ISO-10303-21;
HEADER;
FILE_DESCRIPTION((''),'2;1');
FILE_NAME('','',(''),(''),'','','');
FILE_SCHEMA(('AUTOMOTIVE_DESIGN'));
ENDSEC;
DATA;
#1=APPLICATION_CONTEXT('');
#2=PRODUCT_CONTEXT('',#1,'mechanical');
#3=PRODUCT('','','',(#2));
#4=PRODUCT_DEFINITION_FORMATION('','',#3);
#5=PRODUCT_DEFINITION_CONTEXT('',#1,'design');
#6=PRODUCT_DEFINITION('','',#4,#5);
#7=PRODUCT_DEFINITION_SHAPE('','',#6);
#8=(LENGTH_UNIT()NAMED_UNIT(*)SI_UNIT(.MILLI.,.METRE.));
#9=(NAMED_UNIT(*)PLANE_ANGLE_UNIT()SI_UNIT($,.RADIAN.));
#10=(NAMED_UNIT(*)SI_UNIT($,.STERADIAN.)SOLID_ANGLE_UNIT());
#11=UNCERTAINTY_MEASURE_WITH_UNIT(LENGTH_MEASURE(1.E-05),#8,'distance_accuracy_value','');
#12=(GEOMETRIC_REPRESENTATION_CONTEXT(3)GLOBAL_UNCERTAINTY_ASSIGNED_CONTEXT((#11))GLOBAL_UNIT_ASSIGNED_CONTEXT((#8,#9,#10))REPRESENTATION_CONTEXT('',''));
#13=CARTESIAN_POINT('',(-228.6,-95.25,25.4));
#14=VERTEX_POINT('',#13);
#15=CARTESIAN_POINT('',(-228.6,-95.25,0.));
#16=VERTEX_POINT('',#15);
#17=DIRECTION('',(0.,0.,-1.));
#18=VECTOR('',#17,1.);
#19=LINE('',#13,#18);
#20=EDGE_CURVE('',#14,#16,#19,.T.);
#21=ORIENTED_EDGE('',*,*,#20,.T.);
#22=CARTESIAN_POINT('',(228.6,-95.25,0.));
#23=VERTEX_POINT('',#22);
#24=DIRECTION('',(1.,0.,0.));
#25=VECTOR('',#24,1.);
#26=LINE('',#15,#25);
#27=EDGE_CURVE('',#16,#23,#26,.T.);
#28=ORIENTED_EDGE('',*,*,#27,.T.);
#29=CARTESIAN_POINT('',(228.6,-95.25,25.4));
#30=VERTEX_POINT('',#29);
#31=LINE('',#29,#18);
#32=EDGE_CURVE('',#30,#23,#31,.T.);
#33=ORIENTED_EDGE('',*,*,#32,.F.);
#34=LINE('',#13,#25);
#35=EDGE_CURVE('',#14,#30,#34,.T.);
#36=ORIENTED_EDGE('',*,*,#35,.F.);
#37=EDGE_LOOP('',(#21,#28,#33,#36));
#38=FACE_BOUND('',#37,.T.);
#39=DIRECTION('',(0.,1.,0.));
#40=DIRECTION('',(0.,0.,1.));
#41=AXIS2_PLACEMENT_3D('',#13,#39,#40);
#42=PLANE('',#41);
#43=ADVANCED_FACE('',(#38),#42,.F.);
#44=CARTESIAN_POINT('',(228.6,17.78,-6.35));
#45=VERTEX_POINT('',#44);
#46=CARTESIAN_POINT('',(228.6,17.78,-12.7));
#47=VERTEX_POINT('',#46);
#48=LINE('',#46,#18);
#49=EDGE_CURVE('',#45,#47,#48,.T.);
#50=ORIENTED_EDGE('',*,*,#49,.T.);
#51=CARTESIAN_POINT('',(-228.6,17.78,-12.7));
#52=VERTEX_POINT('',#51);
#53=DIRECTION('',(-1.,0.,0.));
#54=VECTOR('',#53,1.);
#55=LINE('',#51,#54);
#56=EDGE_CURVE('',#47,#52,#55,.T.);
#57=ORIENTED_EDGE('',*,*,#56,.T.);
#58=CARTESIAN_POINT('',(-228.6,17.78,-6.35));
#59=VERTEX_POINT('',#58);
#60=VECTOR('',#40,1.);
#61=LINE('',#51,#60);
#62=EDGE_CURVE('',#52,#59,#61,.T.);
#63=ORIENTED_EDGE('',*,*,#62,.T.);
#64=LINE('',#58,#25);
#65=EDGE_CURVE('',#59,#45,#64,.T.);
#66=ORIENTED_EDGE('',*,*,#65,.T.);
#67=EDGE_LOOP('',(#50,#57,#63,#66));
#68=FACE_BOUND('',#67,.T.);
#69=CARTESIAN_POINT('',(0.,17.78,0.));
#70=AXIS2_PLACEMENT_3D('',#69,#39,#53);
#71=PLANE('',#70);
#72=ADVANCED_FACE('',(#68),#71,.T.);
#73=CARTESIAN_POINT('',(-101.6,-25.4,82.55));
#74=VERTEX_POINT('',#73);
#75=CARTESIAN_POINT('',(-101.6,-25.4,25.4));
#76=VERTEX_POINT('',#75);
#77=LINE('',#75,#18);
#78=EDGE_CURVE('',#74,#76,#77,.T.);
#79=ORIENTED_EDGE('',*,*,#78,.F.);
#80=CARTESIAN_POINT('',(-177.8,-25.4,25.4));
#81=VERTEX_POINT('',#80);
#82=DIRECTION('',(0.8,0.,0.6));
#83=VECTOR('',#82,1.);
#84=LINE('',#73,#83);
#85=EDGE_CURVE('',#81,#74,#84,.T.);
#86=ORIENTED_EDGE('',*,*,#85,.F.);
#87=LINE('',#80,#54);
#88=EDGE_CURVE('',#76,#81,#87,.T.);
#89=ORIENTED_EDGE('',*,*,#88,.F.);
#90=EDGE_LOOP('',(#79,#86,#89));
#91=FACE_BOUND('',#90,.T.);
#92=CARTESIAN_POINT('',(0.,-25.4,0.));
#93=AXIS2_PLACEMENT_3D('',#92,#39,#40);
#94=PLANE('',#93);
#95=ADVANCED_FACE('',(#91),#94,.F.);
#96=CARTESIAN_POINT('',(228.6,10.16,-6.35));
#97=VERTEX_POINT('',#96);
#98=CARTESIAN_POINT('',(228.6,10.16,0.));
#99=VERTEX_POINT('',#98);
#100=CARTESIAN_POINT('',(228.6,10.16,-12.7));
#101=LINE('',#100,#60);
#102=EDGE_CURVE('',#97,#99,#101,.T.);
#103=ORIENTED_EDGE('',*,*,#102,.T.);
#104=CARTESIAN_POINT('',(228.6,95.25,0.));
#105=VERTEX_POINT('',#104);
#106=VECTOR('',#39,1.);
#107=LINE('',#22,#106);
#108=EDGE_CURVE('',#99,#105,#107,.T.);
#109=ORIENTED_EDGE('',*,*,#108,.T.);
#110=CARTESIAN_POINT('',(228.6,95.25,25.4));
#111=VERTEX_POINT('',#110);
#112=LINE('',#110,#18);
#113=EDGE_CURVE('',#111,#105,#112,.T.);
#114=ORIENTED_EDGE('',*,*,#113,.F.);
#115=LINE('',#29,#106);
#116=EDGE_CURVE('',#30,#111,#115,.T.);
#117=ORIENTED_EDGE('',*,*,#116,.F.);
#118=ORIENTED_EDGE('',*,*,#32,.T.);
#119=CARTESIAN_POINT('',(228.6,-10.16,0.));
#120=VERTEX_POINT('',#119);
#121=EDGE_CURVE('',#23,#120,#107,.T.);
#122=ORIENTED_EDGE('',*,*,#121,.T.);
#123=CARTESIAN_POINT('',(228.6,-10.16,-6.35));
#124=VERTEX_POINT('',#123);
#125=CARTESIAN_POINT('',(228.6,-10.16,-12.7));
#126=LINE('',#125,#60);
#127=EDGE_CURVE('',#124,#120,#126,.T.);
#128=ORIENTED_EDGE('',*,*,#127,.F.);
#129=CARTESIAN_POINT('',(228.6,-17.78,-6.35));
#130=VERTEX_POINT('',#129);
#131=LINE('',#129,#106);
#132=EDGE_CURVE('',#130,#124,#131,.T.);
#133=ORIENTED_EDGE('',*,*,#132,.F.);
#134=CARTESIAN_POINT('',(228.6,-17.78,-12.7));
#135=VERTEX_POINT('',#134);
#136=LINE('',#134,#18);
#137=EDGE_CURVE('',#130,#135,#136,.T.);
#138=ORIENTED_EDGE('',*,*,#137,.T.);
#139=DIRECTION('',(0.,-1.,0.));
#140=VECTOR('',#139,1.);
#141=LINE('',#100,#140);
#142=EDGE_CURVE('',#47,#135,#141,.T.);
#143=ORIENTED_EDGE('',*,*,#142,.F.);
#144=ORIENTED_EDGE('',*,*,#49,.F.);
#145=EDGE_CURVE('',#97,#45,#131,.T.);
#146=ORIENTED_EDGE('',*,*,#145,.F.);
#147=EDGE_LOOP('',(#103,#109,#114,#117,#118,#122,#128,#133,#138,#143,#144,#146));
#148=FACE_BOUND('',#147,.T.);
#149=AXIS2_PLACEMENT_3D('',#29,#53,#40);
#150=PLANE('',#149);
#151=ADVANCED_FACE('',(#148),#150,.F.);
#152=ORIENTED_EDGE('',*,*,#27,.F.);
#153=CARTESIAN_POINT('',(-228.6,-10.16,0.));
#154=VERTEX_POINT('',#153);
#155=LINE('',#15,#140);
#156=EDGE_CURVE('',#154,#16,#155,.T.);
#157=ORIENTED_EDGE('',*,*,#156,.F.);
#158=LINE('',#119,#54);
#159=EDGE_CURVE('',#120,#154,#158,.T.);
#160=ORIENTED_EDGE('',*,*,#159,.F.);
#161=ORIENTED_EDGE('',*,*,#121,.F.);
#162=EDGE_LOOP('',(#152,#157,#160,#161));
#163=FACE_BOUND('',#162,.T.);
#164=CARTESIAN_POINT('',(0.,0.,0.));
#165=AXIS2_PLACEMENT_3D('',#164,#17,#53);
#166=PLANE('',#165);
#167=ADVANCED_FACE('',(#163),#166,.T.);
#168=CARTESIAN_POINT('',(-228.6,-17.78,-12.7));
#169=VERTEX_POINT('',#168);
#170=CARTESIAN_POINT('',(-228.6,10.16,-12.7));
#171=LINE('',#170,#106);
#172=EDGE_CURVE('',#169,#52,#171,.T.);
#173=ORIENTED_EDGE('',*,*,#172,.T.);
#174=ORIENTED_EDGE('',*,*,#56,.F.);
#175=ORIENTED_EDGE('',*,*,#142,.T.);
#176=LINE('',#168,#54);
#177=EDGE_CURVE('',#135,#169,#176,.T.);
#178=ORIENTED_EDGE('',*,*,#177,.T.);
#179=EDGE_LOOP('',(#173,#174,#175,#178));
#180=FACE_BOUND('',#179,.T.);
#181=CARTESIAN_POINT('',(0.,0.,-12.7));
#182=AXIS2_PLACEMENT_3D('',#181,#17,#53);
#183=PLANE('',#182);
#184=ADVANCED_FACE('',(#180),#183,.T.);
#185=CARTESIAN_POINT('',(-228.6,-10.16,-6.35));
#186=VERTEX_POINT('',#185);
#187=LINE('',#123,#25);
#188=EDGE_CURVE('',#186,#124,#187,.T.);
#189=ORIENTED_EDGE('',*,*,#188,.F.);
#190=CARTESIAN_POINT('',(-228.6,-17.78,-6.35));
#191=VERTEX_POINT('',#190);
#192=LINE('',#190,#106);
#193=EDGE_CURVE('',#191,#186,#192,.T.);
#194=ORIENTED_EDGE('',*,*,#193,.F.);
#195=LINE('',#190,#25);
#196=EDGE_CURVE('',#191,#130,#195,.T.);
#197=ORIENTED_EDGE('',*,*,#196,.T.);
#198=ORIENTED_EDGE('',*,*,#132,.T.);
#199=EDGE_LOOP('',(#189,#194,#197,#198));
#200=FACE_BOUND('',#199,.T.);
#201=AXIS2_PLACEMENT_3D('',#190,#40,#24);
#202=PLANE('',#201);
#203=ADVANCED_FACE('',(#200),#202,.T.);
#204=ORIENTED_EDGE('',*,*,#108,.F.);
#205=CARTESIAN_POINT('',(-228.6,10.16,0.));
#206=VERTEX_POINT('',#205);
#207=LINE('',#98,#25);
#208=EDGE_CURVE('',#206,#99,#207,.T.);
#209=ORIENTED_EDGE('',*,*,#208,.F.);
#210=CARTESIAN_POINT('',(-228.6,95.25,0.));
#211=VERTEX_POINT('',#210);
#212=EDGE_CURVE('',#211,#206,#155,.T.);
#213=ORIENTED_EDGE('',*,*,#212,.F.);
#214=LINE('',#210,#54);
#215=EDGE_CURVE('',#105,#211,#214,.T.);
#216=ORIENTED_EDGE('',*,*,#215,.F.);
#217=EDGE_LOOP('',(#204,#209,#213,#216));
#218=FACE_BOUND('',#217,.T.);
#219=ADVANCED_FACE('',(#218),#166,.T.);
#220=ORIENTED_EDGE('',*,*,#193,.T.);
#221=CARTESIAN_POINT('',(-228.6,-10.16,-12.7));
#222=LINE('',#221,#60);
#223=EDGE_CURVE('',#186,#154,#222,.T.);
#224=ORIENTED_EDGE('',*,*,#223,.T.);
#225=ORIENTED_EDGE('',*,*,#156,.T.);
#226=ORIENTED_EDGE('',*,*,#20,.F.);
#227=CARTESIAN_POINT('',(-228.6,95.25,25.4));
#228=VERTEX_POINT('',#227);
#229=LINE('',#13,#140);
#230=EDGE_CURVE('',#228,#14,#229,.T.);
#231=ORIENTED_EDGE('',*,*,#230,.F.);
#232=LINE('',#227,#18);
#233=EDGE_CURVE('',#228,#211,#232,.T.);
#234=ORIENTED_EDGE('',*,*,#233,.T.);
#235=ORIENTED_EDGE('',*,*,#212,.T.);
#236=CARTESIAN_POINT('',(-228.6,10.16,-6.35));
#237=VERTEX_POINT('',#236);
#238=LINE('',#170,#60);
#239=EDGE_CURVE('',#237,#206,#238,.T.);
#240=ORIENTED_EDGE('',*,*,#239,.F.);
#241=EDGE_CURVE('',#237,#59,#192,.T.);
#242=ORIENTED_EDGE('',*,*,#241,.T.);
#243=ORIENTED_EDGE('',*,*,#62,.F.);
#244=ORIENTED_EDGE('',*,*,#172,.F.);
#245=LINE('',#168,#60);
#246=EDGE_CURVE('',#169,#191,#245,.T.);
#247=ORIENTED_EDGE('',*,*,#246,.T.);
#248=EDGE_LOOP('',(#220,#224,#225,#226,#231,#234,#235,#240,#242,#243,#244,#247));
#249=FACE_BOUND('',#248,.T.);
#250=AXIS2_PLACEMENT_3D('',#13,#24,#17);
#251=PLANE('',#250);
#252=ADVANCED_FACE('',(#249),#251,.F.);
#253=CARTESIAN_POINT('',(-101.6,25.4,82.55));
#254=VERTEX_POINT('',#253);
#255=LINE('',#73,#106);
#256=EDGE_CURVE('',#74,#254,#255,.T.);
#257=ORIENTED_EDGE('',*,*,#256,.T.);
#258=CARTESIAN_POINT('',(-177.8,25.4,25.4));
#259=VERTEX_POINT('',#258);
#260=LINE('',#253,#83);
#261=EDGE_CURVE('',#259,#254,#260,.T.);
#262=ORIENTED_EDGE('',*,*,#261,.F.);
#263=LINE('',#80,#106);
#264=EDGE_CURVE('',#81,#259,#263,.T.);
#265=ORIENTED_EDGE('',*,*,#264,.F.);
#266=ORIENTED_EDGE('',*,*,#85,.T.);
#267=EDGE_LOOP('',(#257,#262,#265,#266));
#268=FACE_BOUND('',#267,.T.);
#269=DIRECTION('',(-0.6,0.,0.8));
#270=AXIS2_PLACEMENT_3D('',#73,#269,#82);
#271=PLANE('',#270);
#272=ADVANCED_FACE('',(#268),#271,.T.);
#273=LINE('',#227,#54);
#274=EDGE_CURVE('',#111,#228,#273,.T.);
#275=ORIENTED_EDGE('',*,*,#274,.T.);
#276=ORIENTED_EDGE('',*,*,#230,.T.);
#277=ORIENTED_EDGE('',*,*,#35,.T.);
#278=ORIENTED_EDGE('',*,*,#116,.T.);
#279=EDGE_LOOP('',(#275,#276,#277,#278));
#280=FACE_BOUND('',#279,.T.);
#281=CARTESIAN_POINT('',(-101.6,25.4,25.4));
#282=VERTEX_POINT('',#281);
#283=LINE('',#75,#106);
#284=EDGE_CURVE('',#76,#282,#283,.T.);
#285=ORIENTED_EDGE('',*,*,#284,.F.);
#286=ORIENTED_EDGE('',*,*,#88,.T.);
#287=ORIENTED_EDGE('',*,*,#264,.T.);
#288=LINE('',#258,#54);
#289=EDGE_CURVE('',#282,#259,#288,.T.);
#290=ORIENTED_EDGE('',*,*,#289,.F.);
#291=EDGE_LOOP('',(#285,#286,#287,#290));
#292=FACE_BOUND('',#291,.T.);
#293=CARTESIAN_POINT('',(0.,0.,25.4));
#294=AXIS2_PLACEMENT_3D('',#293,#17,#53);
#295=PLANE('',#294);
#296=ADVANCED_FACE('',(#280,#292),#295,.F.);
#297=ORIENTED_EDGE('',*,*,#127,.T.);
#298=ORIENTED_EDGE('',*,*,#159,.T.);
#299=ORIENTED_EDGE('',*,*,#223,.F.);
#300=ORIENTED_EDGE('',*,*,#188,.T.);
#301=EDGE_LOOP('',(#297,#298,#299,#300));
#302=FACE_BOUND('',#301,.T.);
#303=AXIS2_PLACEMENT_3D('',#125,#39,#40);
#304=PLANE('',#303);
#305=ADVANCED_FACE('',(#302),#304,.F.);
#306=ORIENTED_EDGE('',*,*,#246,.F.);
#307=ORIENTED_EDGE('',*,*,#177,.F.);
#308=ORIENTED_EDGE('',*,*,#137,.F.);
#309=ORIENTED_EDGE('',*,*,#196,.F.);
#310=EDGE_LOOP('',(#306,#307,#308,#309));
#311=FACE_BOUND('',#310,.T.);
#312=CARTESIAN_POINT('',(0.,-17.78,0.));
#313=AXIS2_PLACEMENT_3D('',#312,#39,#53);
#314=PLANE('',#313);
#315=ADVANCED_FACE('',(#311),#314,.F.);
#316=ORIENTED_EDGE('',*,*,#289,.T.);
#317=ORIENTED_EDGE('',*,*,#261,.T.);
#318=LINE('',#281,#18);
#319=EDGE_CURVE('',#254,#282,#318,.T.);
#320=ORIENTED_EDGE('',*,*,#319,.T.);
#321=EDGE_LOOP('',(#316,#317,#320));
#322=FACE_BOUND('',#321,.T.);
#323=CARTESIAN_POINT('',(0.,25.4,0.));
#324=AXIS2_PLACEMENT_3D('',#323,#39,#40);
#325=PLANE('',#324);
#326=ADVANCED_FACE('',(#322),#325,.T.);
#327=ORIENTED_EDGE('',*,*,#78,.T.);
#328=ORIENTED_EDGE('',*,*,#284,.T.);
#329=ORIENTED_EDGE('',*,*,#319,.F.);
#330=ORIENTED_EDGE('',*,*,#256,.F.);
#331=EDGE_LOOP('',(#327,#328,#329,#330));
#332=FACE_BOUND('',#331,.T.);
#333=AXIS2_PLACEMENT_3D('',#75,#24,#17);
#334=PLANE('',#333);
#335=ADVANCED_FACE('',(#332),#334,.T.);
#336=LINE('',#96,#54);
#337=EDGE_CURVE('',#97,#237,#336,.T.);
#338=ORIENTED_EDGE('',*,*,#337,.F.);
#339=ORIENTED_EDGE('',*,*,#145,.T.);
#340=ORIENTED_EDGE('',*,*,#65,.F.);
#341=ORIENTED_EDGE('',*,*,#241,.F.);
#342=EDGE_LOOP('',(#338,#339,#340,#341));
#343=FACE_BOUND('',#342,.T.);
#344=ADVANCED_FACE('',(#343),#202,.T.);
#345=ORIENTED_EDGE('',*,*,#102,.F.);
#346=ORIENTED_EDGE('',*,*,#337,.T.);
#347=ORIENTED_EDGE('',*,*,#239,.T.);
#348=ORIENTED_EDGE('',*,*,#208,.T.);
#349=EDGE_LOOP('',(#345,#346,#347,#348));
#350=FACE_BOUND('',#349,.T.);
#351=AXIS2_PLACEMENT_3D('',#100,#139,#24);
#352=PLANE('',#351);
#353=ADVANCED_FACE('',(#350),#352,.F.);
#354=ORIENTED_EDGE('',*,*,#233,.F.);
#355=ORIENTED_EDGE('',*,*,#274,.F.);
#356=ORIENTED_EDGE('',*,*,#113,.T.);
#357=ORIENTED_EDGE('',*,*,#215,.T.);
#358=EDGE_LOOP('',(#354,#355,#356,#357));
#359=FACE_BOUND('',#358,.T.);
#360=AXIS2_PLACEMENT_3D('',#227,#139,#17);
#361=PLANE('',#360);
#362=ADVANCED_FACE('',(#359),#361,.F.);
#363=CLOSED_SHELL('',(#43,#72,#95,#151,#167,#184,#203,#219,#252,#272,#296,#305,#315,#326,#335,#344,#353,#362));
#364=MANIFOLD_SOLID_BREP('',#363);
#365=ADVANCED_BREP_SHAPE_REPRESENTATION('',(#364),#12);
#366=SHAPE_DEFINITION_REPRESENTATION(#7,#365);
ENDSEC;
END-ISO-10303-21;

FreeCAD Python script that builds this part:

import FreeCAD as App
import Part
import Sketcher
Q = App.Units.Quantity

doc = App.newDocument("Part")
body = doc.addObject("PartDesign::Body", "Body")

# Sketch on XY plane
sketch1 = body.newObject("Sketcher::SketchObject", "Sketch")
sketch1.AttachmentSupport = (doc.getObject("XY_Plane"), [""])
sketch1.MapMode = "FlatFace"
sketch1.addGeometry(Part.LineSegment(App.Vector(-229, 95, 0), App.Vector(-229, -95, 0)), False)
sketch1.addGeometry(Part.LineSegment(App.Vector(-229, -95, 0), App.Vector(229, -95, 0)), False)
sketch1.addGeometry(Part.LineSegment(App.Vector(229, -95, 0), App.Vector(229, 95, 0)), False)
sketch1.addGeometry(Part.LineSegment(App.Vector(229, 95, 0), App.Vector(-229, 95, 0)), False)
sketch1.addConstraint(Sketcher.Constraint("Coincident", 0, 2, 1, 1))
sketch1.addConstraint(Sketcher.Constraint("Coincident", 1, 2, 2, 1))
sketch1.addConstraint(Sketcher.Constraint("Coincident", 2, 2, 3, 1))
sketch1.addConstraint(Sketcher.Constraint("Coincident", 3, 2, 0, 1))
sketch1.addConstraint(Sketcher.Constraint("Vertical", 0))
sketch1.addConstraint(Sketcher.Constraint("Horizontal", 1))
sketch1.addConstraint(Sketcher.Constraint("Vertical", 2))
sketch1.addConstraint(Sketcher.Constraint("Horizontal", 3))
sketch1.addConstraint(Sketcher.Constraint("Symmetric", 0, 2, 2, 2, -1, 1))
sketch1.addConstraint(Sketcher.Constraint("DistanceX", 1, 1, 1, 2, Q("18 in")))
sketch1.addConstraint(Sketcher.Constraint("DistanceY", 0, 2, 0, 1, Q("7.5 in")))
pad1 = body.newObject("PartDesign::Pad", "Pad")
pad1.Profile = sketch1
pad1.Length = Q("1 in")

# Sketch on XY plane
sketch2 = body.newObject("Sketcher::SketchObject", "Sketch001")
sketch2.AttachmentSupport = (doc.getObject("XY_Plane"), [""])
sketch2.MapMode = "FlatFace"
sketch2.addGeometry(Part.LineSegment(App.Vector(229, 10, 0), App.Vector(229, -10, 0)), False)
sketch2.addGeometry(Part.LineSegment(App.Vector(229, -10, 0), App.Vector(-229, -10, 0)), False)
sketch2.addGeometry(Part.LineSegment(App.Vector(-229, -10, 0), App.Vector(-229, 10, 0)), False)
sketch2.addGeometry(Part.LineSegment(App.Vector(-229, 10, 0), App.Vector(229, 10, 0)), False)
sketch2.addConstraint(Sketcher.Constraint("Coincident", 0, 2, 1, 1))
sketch2.addConstraint(Sketcher.Constraint("Coincident", 1, 2, 2, 1))
sketch2.addConstraint(Sketcher.Constraint("Coincident", 2, 2, 3, 1))
sketch2.addConstraint(Sketcher.Constraint("Coincident", 3, 2, 0, 1))
sketch2.addConstraint(Sketcher.Constraint("Vertical", 0))
sketch2.addConstraint(Sketcher.Constraint("Horizontal", 1))
sketch2.addConstraint(Sketcher.Constraint("Vertical", 2))
sketch2.addConstraint(Sketcher.Constraint("Horizontal", 3))
sketch2.addConstraint(Sketcher.Constraint("Symmetric", 0, 2, 2, 2, -1, 1))
sketch2.addConstraint(Sketcher.Constraint("DistanceX", 1, 2, 1, 1, Q("18 in")))
sketch2.addConstraint(Sketcher.Constraint("DistanceY", 0, 2, 0, 1, Q("0.8 in")))
pad2 = body.newObject("PartDesign::Pad", "Pad001")
pad2.Profile = sketch2
pad2.Length = Q("0.5 in")
pad2.Reversed = True

# Sketch on XZ plane
sketch3 = body.newObject("Sketcher::SketchObject", "Sketch002")
sketch3.AttachmentSupport = (doc.getObject("XZ_Plane"), [""])
sketch3.MapMode = "FlatFace"
sketch3.AttachmentOffset = App.Placement(App.Vector(0, 0, -0.4 * 25.4), App.Rotation())
sketch3.addGeometry(Part.LineSegment(App.Vector(-229, -13, 0), App.Vector(-229, -6, 0)), False)
sketch3.addGeometry(Part.LineSegment(App.Vector(-229, -6, 0), App.Vector(229, -6, 0)), False)
sketch3.addGeometry(Part.LineSegment(App.Vector(229, -6, 0), App.Vector(229, -13, 0)), False)
sketch3.addGeometry(Part.LineSegment(App.Vector(229, -13, 0), App.Vector(-229, -13, 0)), False)
sketch3.addConstraint(Sketcher.Constraint("Coincident", 0, 2, 1, 1))
sketch3.addConstraint(Sketcher.Constraint("Coincident", 1, 2, 2, 1))
sketch3.addConstraint(Sketcher.Constraint("Coincident", 2, 2, 3, 1))
sketch3.addConstraint(Sketcher.Constraint("Coincident", 3, 2, 0, 1))
sketch3.addConstraint(Sketcher.Constraint("Vertical", 0))
sketch3.addConstraint(Sketcher.Constraint("Horizontal", 1))
sketch3.addConstraint(Sketcher.Constraint("Vertical", 2))
sketch3.addConstraint(Sketcher.Constraint("Horizontal", 3))
sketch3.addConstraint(Sketcher.Constraint("DistanceX", 1, 1, 1, 2, Q("18 in")))
sketch3.addConstraint(Sketcher.Constraint("DistanceX", 0, 2, -1, 1, Q("9 in")))
sketch3.addConstraint(Sketcher.Constraint("DistanceY", 0, 1, 0, 2, Q("0.25 in")))
sketch3.addConstraint(Sketcher.Constraint("DistanceY", 2, 2, -1, 1, Q("0.5 in")))
pad3 = body.newObject("PartDesign::Pad", "Pad002")
pad3.Profile = sketch3
pad3.Type = "TwoLengths"
pad3.Length = Q("0.3 in")
pad3.Length2 = Q("1.1 in")
pad3.Reversed = True

# Sketch on XZ plane
sketch4 = body.newObject("Sketcher::SketchObject", "Sketch003")
sketch4.AttachmentSupport = (doc.getObject("XZ_Plane"), [""])
sketch4.MapMode = "FlatFace"
sketch4.addGeometry(Part.LineSegment(App.Vector(-102, 25, 0), App.Vector(-178, 25, 0)), False)
sketch4.addGeometry(Part.LineSegment(App.Vector(-178, 25, 0), App.Vector(-102, 83, 0)), False)
sketch4.addGeometry(Part.LineSegment(App.Vector(-102, 83, 0), App.Vector(-102, 25, 0)), False)
sketch4.addConstraint(Sketcher.Constraint("Coincident", 0, 2, 1, 1))
sketch4.addConstraint(Sketcher.Constraint("Coincident", 1, 2, 2, 1))
sketch4.addConstraint(Sketcher.Constraint("Coincident", 2, 2, 0, 1))
sketch4.addConstraint(Sketcher.Constraint("Horizontal", 0))
sketch4.addConstraint(Sketcher.Constraint("Vertical", 2))
sketch4.addConstraint(Sketcher.Constraint("DistanceX", 0, 2, 0, 1, Q("3 in")))
sketch4.addConstraint(Sketcher.Constraint("DistanceX", 0, 2, -1, 1, Q("7 in")))
sketch4.addConstraint(Sketcher.Constraint("DistanceY", -1, 1, 0, 2, Q("1 in")))
sketch4.addConstraint(Sketcher.Constraint("DistanceY", 2, 2, 2, 1, Q("2.25 in")))
pad4 = body.newObject("PartDesign::Pad", "Pad003")
pad4.Profile = sketch4
pad4.Type = "TwoLengths"
pad4.Length = Q("1 in")
pad4.Length2 = Q("1 in")
pad4.Reversed = True

doc.recompute()
